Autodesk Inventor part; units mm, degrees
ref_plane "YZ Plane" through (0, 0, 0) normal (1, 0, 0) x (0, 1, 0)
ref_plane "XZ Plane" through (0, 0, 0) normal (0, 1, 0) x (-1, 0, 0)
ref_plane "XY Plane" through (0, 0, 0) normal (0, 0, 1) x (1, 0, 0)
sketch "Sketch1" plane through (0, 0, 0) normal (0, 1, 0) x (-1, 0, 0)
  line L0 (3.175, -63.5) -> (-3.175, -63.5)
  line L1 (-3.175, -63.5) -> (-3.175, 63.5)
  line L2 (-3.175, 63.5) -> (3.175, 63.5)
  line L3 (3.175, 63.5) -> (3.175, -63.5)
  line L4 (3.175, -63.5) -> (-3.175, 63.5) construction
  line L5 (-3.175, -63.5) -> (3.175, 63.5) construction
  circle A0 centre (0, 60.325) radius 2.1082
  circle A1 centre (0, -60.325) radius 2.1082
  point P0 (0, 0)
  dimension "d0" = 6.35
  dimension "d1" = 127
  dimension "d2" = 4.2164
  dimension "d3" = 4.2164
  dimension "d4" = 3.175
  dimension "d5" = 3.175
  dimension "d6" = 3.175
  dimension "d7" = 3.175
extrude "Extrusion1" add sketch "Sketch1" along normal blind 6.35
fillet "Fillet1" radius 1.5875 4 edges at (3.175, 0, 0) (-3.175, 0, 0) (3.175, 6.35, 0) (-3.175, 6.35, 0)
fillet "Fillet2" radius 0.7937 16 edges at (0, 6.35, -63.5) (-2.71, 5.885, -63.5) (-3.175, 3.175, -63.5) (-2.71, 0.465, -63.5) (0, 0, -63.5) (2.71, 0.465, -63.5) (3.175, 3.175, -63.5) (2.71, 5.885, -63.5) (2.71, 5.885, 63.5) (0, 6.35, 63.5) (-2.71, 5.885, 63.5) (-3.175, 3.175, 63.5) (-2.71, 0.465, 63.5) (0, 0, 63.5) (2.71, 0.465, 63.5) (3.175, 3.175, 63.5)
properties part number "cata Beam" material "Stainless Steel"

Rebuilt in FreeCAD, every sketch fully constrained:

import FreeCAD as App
import Part
import Sketcher
from FreeCAD import Vector
Q = App.Units.Quantity


def edges_at(feature, points):
    """Names of the edges that pass closest to the given points."""
    edges = feature.Shape.Edges
    near = lambda p: min(range(len(edges)), key=lambda i: edges[i].distToShape(Part.Vertex(*p))[0])
    return sorted({f"Edge{near(p) + 1}" for p in points})

doc = App.newDocument("Part")
params = doc.addObject("Spreadsheet::Sheet", "Params")
for row, (alias, value) in enumerate([
    ("sketch1_height", "5 in"),
    ("sketch1_diameter", "0.166 in"),
    ("sketch1_width", "0.25 in"),
    ("pad1_length", "0.25 in"),
    ("fillet_radius", "0.0625 in"),
    ("fillet2_radius", "0.031248 in"),
], start=1):
    params.set(f"A{row}", alias)
    params.set(f"B{row}", "=" + value)
    params.setAlias(f"B{row}", alias)

body = doc.addObject("PartDesign::Body", "Body")

sketch1 = doc.addObject("Sketcher::SketchObject", "Sketch")
body.addObject(sketch1)
sketch1.AttachmentSupport = (doc.XZ_Plane, [""])
sketch1.MapMode = "FlatFace"
sketch1.addGeometry(Part.LineSegment(Vector(3.2, -63.5, 0), Vector(-3.2, -63.5, 0)), False)
sketch1.addGeometry(Part.LineSegment(Vector(-3.2, -63.5, 0), Vector(-3.2, 63.5, 0)), False)
sketch1.addGeometry(Part.LineSegment(Vector(-3.2, 63.5, 0), Vector(3.2, 63.5, 0)), False)
sketch1.addGeometry(Part.LineSegment(Vector(3.2, 63.5, 0), Vector(3.2, -63.5, 0)), False)
sketch1.addGeometry(Part.Circle(Vector(0, -60.3, 0), Vector(0, 0, 1), 2.1), False)
sketch1.addGeometry(Part.Circle(Vector(0, 60.3, 0), Vector(0, 0, 1), 2.1), False)
sketch1.addConstraint(Sketcher.Constraint("Coincident", 0, 2, 1, 1))
sketch1.addConstraint(Sketcher.Constraint("Coincident", 1, 2, 2, 1))
sketch1.addConstraint(Sketcher.Constraint("Coincident", 2, 2, 3, 1))
sketch1.addConstraint(Sketcher.Constraint("Coincident", 3, 2, 0, 1))
sketch1.addConstraint(Sketcher.Constraint("Horizontal", 0))
sketch1.addConstraint(Sketcher.Constraint("Vertical", 1))
sketch1.addConstraint(Sketcher.Constraint("Horizontal", 2))
sketch1.addConstraint(Sketcher.Constraint("Vertical", 3))
sketch1.addConstraint(Sketcher.Constraint("Equal", 4, 5))
sketch1.addConstraint(Sketcher.Constraint("Symmetric", 4, 3, 5, 3, -1, 1))
sketch1.addConstraint(Sketcher.Constraint("Symmetric", 0, 2, 2, 2, -1, 1))
sketch1.addConstraint(Sketcher.Constraint("PointOnObject", 4, 3, -2))
sketch1.addConstraint(Sketcher.Constraint("DistanceY", 1, 1, 1, 2, Q("5 in")))
sketch1.addConstraint(Sketcher.Constraint("Diameter", 4, Q("0.166 in")))
sketch1.addConstraint(Sketcher.Constraint("DistanceX", 0, 2, 0, 1, Q("0.25 in")))
sketch1.addConstraint(Sketcher.Constraint("DistanceY", 0, 2, 4, 3, Q("0.125 in")))
sketch1.setExpression("Constraints[12]", "Params.sketch1_height")
sketch1.setExpression("Constraints[13]", "Params.sketch1_diameter")
sketch1.setExpression("Constraints[14]", "Params.sketch1_width")
pad1 = doc.addObject("PartDesign::Pad", "Pad")
body.addObject(pad1)
pad1.Profile = sketch1
pad1.setExpression("Length", "Params.pad1_length")
pad1.Reversed = True
doc.recompute()

fillet = doc.addObject("PartDesign::Fillet", "Fillet")
body.addObject(fillet)
fillet.Base = (pad1, edges_at(pad1, [
    (3.175, 0, 0),
    (-3.175, 0, 0),
    (3.175, 6.35, 0),
    (-3.175, 6.35, 0),
]))
fillet.setExpression("Radius", "Params.fillet_radius")
doc.recompute()

fillet2 = doc.addObject("PartDesign::Fillet", "Fillet001")
body.addObject(fillet2)
fillet2.Base = (fillet, edges_at(fillet, [
    (0, 6.35, -63.5),
    (-2.71, 5.885, -63.5),
    (-3.175, 3.175, -63.5),
    (-2.71, 0.465, -63.5),
    (0, 0, -63.5),
    (2.71, 0.465, -63.5),
    (3.175, 3.175, -63.5),
    (2.71, 5.885, -63.5),
    (2.71, 5.885, 63.5),
    (0, 6.35, 63.5),
    (-2.71, 5.885, 63.5),
    (-3.175, 3.175, 63.5),
    (-2.71, 0.465, 63.5),
    (0, 0, 63.5),
    (2.71, 0.465, 63.5),
    (3.175, 3.175, 63.5),
]))
fillet2.setExpression("Radius", "Params.fillet2_radius")

doc.recompute()
